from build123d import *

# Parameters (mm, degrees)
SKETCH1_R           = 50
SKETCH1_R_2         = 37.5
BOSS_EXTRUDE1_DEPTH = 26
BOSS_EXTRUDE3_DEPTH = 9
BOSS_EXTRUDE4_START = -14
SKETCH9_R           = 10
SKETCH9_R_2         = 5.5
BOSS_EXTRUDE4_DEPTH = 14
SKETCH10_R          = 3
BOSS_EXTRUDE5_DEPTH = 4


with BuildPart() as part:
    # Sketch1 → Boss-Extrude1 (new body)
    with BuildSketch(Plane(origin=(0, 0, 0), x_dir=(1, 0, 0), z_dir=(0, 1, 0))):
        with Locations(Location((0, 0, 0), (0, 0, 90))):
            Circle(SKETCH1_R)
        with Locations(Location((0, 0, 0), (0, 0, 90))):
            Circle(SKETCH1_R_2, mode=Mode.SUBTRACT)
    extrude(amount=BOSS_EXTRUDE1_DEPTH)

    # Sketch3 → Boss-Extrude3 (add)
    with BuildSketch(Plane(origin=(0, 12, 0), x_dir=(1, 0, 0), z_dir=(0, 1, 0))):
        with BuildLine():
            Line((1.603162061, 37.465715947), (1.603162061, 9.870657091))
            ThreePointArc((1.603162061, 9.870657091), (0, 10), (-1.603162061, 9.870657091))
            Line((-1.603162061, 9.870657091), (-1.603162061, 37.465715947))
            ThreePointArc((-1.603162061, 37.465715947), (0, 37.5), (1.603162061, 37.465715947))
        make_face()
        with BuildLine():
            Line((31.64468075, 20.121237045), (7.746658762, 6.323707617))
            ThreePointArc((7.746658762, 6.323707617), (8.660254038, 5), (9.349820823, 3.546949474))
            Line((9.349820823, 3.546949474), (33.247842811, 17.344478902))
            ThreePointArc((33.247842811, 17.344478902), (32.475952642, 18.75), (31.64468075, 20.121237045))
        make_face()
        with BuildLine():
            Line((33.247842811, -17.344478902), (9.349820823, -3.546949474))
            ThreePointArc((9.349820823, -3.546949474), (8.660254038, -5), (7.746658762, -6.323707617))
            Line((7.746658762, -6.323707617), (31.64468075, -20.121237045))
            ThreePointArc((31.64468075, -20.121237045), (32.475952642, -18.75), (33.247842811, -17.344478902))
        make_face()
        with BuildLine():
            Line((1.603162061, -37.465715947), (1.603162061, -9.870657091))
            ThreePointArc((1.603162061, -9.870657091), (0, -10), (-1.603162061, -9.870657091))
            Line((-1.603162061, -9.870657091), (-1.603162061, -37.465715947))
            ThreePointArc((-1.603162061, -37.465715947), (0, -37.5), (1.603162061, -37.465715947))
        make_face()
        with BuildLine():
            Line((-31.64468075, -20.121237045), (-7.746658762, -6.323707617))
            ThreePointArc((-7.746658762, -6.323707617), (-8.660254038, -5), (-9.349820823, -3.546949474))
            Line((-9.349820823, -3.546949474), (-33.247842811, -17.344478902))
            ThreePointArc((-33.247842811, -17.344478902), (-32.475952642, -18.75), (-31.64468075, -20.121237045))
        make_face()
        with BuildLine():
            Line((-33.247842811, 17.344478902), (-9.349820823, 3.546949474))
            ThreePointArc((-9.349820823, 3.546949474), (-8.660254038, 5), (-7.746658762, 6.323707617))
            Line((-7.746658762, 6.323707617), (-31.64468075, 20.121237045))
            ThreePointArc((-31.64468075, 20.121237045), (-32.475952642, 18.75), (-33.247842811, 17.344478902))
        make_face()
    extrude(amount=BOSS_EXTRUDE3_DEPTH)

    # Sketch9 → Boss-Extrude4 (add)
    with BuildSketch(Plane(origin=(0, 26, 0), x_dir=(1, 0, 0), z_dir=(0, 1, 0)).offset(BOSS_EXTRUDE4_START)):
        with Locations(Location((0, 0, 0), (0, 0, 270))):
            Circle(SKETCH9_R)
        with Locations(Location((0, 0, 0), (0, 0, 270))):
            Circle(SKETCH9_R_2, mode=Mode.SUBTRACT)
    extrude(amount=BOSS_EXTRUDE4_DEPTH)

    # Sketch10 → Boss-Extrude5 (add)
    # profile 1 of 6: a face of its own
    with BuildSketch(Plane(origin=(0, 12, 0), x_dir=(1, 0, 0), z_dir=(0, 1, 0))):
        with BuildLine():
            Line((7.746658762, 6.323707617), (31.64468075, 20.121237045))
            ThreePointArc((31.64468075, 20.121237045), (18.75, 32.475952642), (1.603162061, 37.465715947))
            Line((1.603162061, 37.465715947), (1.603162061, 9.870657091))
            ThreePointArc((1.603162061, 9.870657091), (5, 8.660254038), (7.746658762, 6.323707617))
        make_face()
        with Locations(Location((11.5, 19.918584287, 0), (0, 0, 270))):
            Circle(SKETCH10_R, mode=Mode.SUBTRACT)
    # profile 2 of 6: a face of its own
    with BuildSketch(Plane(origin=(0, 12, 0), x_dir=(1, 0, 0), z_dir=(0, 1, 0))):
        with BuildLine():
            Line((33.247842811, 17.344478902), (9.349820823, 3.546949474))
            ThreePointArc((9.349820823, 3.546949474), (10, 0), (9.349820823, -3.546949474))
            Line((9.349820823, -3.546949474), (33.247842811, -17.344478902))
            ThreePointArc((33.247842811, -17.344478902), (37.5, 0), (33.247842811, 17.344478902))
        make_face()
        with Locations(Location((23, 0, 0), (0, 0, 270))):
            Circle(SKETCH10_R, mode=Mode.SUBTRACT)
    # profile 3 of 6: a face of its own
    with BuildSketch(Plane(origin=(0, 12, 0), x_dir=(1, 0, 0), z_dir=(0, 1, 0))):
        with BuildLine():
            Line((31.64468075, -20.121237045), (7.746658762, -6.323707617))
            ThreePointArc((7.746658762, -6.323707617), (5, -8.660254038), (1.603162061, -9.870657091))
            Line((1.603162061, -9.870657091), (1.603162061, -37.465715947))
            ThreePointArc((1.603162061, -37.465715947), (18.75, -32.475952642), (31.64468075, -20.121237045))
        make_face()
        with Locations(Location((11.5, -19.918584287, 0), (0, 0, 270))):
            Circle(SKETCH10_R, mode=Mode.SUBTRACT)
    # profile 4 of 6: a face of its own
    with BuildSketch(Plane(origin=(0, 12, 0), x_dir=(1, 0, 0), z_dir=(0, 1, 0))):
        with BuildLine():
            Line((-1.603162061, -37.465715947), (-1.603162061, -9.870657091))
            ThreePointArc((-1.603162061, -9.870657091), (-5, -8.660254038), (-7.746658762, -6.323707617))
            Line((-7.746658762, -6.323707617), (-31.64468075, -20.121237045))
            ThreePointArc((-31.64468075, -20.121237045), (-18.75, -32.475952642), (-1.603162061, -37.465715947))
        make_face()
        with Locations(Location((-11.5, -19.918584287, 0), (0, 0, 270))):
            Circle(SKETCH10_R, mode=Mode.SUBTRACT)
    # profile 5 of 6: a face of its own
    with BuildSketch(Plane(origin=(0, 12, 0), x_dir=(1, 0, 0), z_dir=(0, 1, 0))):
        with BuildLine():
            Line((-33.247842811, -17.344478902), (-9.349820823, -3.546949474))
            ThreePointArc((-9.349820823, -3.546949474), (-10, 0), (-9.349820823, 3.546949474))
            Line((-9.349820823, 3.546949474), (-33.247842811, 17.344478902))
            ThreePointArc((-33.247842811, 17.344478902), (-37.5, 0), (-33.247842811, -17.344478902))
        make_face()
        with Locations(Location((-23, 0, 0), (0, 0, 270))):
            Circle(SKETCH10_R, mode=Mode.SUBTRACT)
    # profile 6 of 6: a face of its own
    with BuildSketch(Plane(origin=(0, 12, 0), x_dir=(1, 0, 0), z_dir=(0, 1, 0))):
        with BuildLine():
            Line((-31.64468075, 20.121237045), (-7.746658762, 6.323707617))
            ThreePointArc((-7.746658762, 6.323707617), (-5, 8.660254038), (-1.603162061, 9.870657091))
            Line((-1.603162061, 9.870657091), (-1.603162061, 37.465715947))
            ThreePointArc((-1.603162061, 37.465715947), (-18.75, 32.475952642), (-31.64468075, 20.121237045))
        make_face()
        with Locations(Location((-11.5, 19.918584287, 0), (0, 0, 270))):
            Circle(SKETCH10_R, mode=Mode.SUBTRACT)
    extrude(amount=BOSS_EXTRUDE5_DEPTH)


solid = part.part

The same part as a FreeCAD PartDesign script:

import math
import FreeCAD as App
import Part
import Sketcher
from FreeCAD import Vector
Q = App.Units.Quantity

doc = App.newDocument("Part")
params = doc.addObject("Spreadsheet::Sheet", "Params")
for row, (alias, value) in enumerate([
    ("sketch1_diameter", "100 mm"),
    ("sketch1_diameter2", "75 mm"),
    ("pad1_length", "26 mm"),
    ("sketch2_radius", "10 mm"),
    ("sketch2_radius2", "37.5 mm"),
    ("pad2_length", "9 mm"),
    ("sketch3_diameter", "20 mm"),
    ("sketch3_diameter2", "11 mm"),
    ("pad3_length", "14 mm"),
    ("sketch4_diameter", "6 mm"),
    ("sketch4_radius", "10 mm"),
    ("sketch4_radius2", "37.5 mm"),
    ("pad4_length", "4 mm"),
], start=1):
    params.set(f"A{row}", alias)
    params.set(f"B{row}", "=" + value)
    params.setAlias(f"B{row}", alias)

body = doc.addObject("PartDesign::Body", "Body")

sketch1 = body.newObject("Sketcher::SketchObject", "Sketch")
sketch1.AttachmentSupport = (doc.getObject("XZ_Plane"), [""])
sketch1.MapMode = "FlatFace"
sketch1.addGeometry([
    Part.Circle(Vector(0, 0, 0), Vector(0, 0, 1), 50),
    Part.Circle(Vector(0, 0, 0), Vector(0, 0, 1), 38),
], False)
sketch1.addConstraint([
    Sketcher.Constraint("Coincident", 0, 3, -1, 1),
    Sketcher.Constraint("Coincident", 1, 3, -1, 1),
    Sketcher.Constraint("Diameter", 0, 100.0),
    Sketcher.Constraint("Diameter", 1, 75.0),
])
sketch1.setExpression("Constraints[2]", "Params.sketch1_diameter")
sketch1.setExpression("Constraints[3]", "Params.sketch1_diameter2")
pad1 = body.newObject("PartDesign::Pad", "Pad")
pad1.Profile = sketch1
pad1.setExpression("Length", "Params.pad1_length")
pad1.Reversed = True

sketch2 = body.newObject("Sketcher::SketchObject", "Sketch001")
sketch2.AttachmentSupport = (doc.getObject("XZ_Plane"), [""])
sketch2.MapMode = "FlatFace"
sketch2.AttachmentOffset = App.Placement(Vector(0, 0, -12), App.Rotation())
sketch2.addGeometry([
    Part.LineSegment(Vector(1.6, -9.9, 0), Vector(1.6, -37.5, 0)),
    Part.ArcOfCircle(Part.Circle(Vector(0, 0, 0), Vector(0, 0, 1), 37.5), math.radians(-92.45), math.radians(-87.55)),
    Part.LineSegment(Vector(-1.6, -37.5, 0), Vector(-1.6, -9.9, 0)),
    Part.ArcOfCircle(Part.Circle(Vector(0, 0, 0), Vector(0, 0, 1), 10), math.radians(-99.23), math.radians(-80.77)),
    Part.LineSegment(Vector(31.6, -20.1, 0), Vector(7.7, -6.3, 0)),
    Part.ArcOfCircle(Part.Circle(Vector(0, 0, 0), Vector(0, 0, 1), 10), math.radians(-39.23), math.radians(-20.77)),
    Part.LineSegment(Vector(9.3, -3.5, 0), Vector(33.2, -17.3, 0)),
    Part.ArcOfCircle(Part.Circle(Vector(0, 0, 0), Vector(0, 0, 1), 37.5), math.radians(-32.45), math.radians(-27.55)),
    Part.LineSegment(Vector(33.2, 17.3, 0), Vector(9.3, 3.5, 0)),
    Part.ArcOfCircle(Part.Circle(Vector(0, 0, 0), Vector(0, 0, 1), 10), math.radians(20.77), math.radians(39.23)),
    Part.LineSegment(Vector(7.7, 6.3, 0), Vector(31.6, 20.1, 0)),
    Part.ArcOfCircle(Part.Circle(Vector(0, 0, 0), Vector(0, 0, 1), 37.5), math.radians(27.55), math.radians(32.45)),
    Part.LineSegment(Vector(1.6, 37.5, 0), Vector(1.6, 9.9, 0)),
    Part.ArcOfCircle(Part.Circle(Vector(0, 0, 0), Vector(0, 0, 1), 10), math.radians(80.77), math.radians(99.23)),
    Part.LineSegment(Vector(-1.6, 9.9, 0), Vector(-1.6, 37.5, 0)),
    Part.ArcOfCircle(Part.Circle(Vector(0, 0, 0), Vector(0, 0, 1), 37.5), math.radians(87.55), math.radians(92.45)),
    Part.LineSegment(Vector(-31.6, 20.1, 0), Vector(-7.7, 6.3, 0)),
    Part.ArcOfCircle(Part.Circle(Vector(0, 0, 0), Vector(0, 0, 1), 10), math.radians(140.77), math.radians(159.23)),
    Part.LineSegment(Vector(-9.3, 3.5, 0), Vector(-33.2, 17.3, 0)),
    Part.ArcOfCircle(Part.Circle(Vector(0, 0, 0), Vector(0, 0, 1), 37.5), math.radians(147.55), math.radians(152.45)),
    Part.LineSegment(Vector(-33.2, -17.3, 0), Vector(-9.3, -3.5, 0)),
    Part.ArcOfCircle(Part.Circle(Vector(0, 0, 0), Vector(0, 0, 1), 10), math.radians(-159.23), math.radians(-140.77)),
    Part.LineSegment(Vector(-7.7, -6.3, 0), Vector(-31.6, -20.1, 0)),
    Part.ArcOfCircle(Part.Circle(Vector(0, 0, 0), Vector(0, 0, 1), 37.5), math.radians(-152.45), math.radians(-147.55)),
], False)
sketch2.addConstraint([
    Sketcher.Constraint("Coincident", 0, 2, 1, 2),
    Sketcher.Constraint("Coincident", 1, 1, 2, 1),
    Sketcher.Constraint("Coincident", 2, 2, 3, 1),
    Sketcher.Constraint("Coincident", 3, 2, 0, 1),
    Sketcher.Constraint("Coincident", 4, 2, 5, 1),
    Sketcher.Constraint("Coincident", 5, 2, 6, 1),
    Sketcher.Constraint("Coincident", 6, 2, 7, 2),
    Sketcher.Constraint("Coincident", 7, 1, 4, 1),
    Sketcher.Constraint("Coincident", 8, 2, 9, 1),
    Sketcher.Constraint("Coincident", 9, 2, 10, 1),
    Sketcher.Constraint("Coincident", 10, 2, 11, 2),
    Sketcher.Constraint("Coincident", 11, 1, 8, 1),
    Sketcher.Constraint("Coincident", 12, 2, 13, 1),
    Sketcher.Constraint("Coincident", 13, 2, 14, 1),
    Sketcher.Constraint("Coincident", 14, 2, 15, 2),
    Sketcher.Constraint("Coincident", 15, 1, 12, 1),
    Sketcher.Constraint("Coincident", 16, 2, 17, 1),
    Sketcher.Constraint("Coincident", 17, 2, 18, 1),
    Sketcher.Constraint("Coincident", 18, 2, 19, 2),
    Sketcher.Constraint("Coincident", 19, 1, 16, 1),
    Sketcher.Constraint("Coincident", 20, 2, 21, 1),
    Sketcher.Constraint("Coincident", 21, 2, 22, 1),
    Sketcher.Constraint("Coincident", 22, 2, 23, 2),
    Sketcher.Constraint("Coincident", 23, 1, 20, 1),
    Sketcher.Constraint("Vertical", 0),
    Sketcher.Constraint("Vertical", 2),
    Sketcher.Constraint("Vertical", 12),
    Sketcher.Constraint("Vertical", 14),
    Sketcher.Constraint("Coincident", 1, 3, -1, 1),
    Sketcher.Constraint("Coincident", 3, 3, -1, 1),
    Sketcher.Constraint("Coincident", 5, 3, -1, 1),
    Sketcher.Constraint("Coincident", 7, 3, -1, 1),
    Sketcher.Constraint("Coincident", 9, 3, -1, 1),
    Sketcher.Constraint("Coincident", 11, 3, -1, 1),
    Sketcher.Constraint("Coincident", 13, 3, -1, 1),
    Sketcher.Constraint("Coincident", 15, 3, -1, 1),
    Sketcher.Constraint("Coincident", 17, 3, -1, 1),
    Sketcher.Constraint("Coincident", 19, 3, -1, 1),
    Sketcher.Constraint("Coincident", 21, 3, -1, 1),
    Sketcher.Constraint("Coincident", 23, 3, -1, 1),
    Sketcher.Constraint("Equal", 3, 5),
    Sketcher.Constraint("Equal", 1, 7),
    Sketcher.Constraint("Equal", 5, 9),
    Sketcher.Constraint("Equal", 7, 11),
    Sketcher.Constraint("Equal", 9, 13),
    Sketcher.Constraint("Equal", 11, 15),
    Sketcher.Constraint("Equal", 13, 17),
    Sketcher.Constraint("Equal", 15, 19),
    Sketcher.Constraint("Equal", 17, 21),
    Sketcher.Constraint("Equal", 19, 23),
    Sketcher.Constraint("Parallel", 4, 6),
    Sketcher.Constraint("Parallel", 8, 10),
    Sketcher.Constraint("Parallel", 6, 16),
    Sketcher.Constraint("Parallel", 16, 18),
    Sketcher.Constraint("Parallel", 10, 20),
    Sketcher.Constraint("Parallel", 20, 22),
    Sketcher.Constraint("Horizontal", 0, 2, 1, 1),
    Sketcher.Constraint("Horizontal", 12, 2, 13, 2),
    Sketcher.Constraint("Horizontal", 9, 2, 16, 2),
    Sketcher.Constraint("Horizontal", 8, 2, 17, 2),
    Sketcher.Constraint("Horizontal", 11, 1, 18, 2),
    Sketcher.Constraint("Horizontal", 5, 2, 20, 2),
    Sketcher.Constraint("Horizontal", 4, 2, 21, 2),
    Sketcher.Constraint("Vertical", 5, 2, 8, 2),
    Sketcher.Constraint("Vertical", 4, 2, 9, 2),
    Sketcher.Constraint("Vertical", 3, 2, 12, 2),
    Sketcher.Constraint("Equal", 4, 6),
    Sketcher.Constraint("Radius", 3, 10.0),
    Sketcher.Constraint("Radius", 1, 37.5),
    Sketcher.Constraint("Angle", 4, Q("150 deg")),
    Sketcher.Constraint("DistanceY", 0, 2, 0, 1, 27.595059),
    Sketcher.Constraint("DistanceY", 5, 2, 8, 2, 7.093899),
])
sketch2.setExpression("Constraints[67]", "Params.sketch2_radius")
sketch2.setExpression("Constraints[68]", "Params.sketch2_radius2")
pad2 = body.newObject("PartDesign::Pad", "Pad001")
pad2.Profile = sketch2
pad2.setExpression("Length", "Params.pad2_length")
pad2.Reversed = True

sketch3 = body.newObject("Sketcher::SketchObject", "Sketch002")
sketch3.AttachmentSupport = (doc.getObject("XZ_Plane"), [""])
sketch3.MapMode = "FlatFace"
sketch3.AttachmentOffset = App.Placement(Vector(0, 0, -12), App.Rotation())
sketch3.addGeometry([
    Part.Circle(Vector(0, 0, 0), Vector(0, 0, 1), 10),
    Part.Circle(Vector(0, 0, 0), Vector(0, 0, 1), 6),
], False)
sketch3.addConstraint([
    Sketcher.Constraint("Coincident", 0, 3, -1, 1),
    Sketcher.Constraint("Coincident", 1, 3, -1, 1),
    Sketcher.Constraint("Diameter", 0, 20.0),
    Sketcher.Constraint("Diameter", 1, 11.0),
])
sketch3.setExpression("Constraints[2]", "Params.sketch3_diameter")
sketch3.setExpression("Constraints[3]", "Params.sketch3_diameter2")
pad3 = body.newObject("PartDesign::Pad", "Pad002")
pad3.Profile = sketch3
pad3.setExpression("Length", "Params.pad3_length")
pad3.Reversed = True

sketch4 = body.newObject("Sketcher::SketchObject", "Sketch003")
sketch4.AttachmentSupport = (doc.getObject("XZ_Plane"), [""])
sketch4.MapMode = "FlatFace"
sketch4.AttachmentOffset = App.Placement(Vector(0, 0, -12), App.Rotation())
sketch4.addGeometry([
    Part.LineSegment(Vector(7.7, -6.3, 0), Vector(31.6, -20.1, 0)),
    Part.ArcOfCircle(Part.Circle(Vector(0, 0, 0), Vector(0, 0, 1), 37.5), math.radians(-88), math.radians(-32)),
    Part.LineSegment(Vector(1.6, -37.5, 0), Vector(1.6, -9.9, 0)),
    Part.ArcOfCircle(Part.Circle(Vector(0, 0, 0), Vector(0, 0, 1), 10), math.radians(-81), math.radians(-39)),
    Part.Circle(Vector(11.5, -19.9, 0), Vector(0, 0, 1), 3),
    Part.LineSegment(Vector(33.2, -17.3, 0), Vector(9.3, -3.5, 0)),
    Part.ArcOfCircle(Part.Circle(Vector(0, 0, 0), Vector(0, 0, 1), 10), math.radians(-21), math.radians(21)),
    Part.LineSegment(Vector(9.3, 3.5, 0), Vector(33.2, 17.3, 0)),
    Part.ArcOfCircle(Part.Circle(Vector(0, 0, 0), Vector(0, 0, 1), 37.5), math.radians(-28), math.radians(28)),
    Part.Circle(Vector(23, 0, 0), Vector(0, 0, 1), 3),
    Part.LineSegment(Vector(31.6, 20.1, 0), Vector(7.7, 6.3, 0)),
    Part.ArcOfCircle(Part.Circle(Vector(0, 0, 0), Vector(0, 0, 1), 10), math.radians(39), math.radians(81)),
    Part.LineSegment(Vector(1.6, 9.9, 0), Vector(1.6, 37.5, 0)),
    Part.ArcOfCircle(Part.Circle(Vector(0, 0, 0), Vector(0, 0, 1), 37.5), math.radians(32), math.radians(88)),
    Part.Circle(Vector(11.5, 19.9, 0), Vector(0, 0, 1), 3),
    Part.LineSegment(Vector(-1.6, 37.5, 0), Vector(-1.6, 9.9, 0)),
    Part.ArcOfCircle(Part.Circle(Vector(0, 0, 0), Vector(0, 0, 1), 10), math.radians(99), math.radians(141)),
    Part.LineSegment(Vector(-7.7, 6.3, 0), Vector(-31.6, 20.1, 0)),
    Part.ArcOfCircle(Part.Circle(Vector(0, 0, 0), Vector(0, 0, 1), 37.5), math.radians(92), math.radians(148)),
    Part.Circle(Vector(-11.5, 19.9, 0), Vector(0, 0, 1), 3),
    Part.LineSegment(Vector(-33.2, 17.3, 0), Vector(-9.3, 3.5, 0)),
    Part.ArcOfCircle(Part.Circle(Vector(0, 0, 0), Vector(0, 0, 1), 10), math.radians(159), math.radians(201)),
    Part.LineSegment(Vector(-9.3, -3.5, 0), Vector(-33.2, -17.3, 0)),
    Part.ArcOfCircle(Part.Circle(Vector(0, 0, 0), Vector(0, 0, 1), 37.5), math.radians(152), math.radians(208)),
    Part.Circle(Vector(-23, 0, 0), Vector(0, 0, 1), 3),
    Part.LineSegment(Vector(-31.6, -20.1, 0), Vector(-7.7, -6.3, 0)),
    Part.ArcOfCircle(Part.Circle(Vector(0, 0, 0), Vector(0, 0, 1), 10), math.radians(-141), math.radians(-99)),
    Part.LineSegment(Vector(-1.6, -9.9, 0), Vector(-1.6, -37.5, 0)),
    Part.ArcOfCircle(Part.Circle(Vector(0, 0, 0), Vector(0, 0, 1), 37.5), math.radians(-148), math.radians(-92)),
    Part.Circle(Vector(-11.5, -19.9, 0), Vector(0, 0, 1), 3),
], False)
sketch4.addConstraint([
    Sketcher.Constraint("Coincident", 0, 2, 1, 2),
    Sketcher.Constraint("Coincident", 1, 1, 2, 1),
    Sketcher.Constraint("Coincident", 2, 2, 3, 1),
    Sketcher.Constraint("Coincident", 3, 2, 0, 1),
    Sketcher.Constraint("Coincident", 5, 2, 6, 1),
    Sketcher.Constraint("Coincident", 6, 2, 7, 1),
    Sketcher.Constraint("Coincident", 7, 2, 8, 2),
    Sketcher.Constraint("Coincident", 8, 1, 5, 1),
    Sketcher.Constraint("Coincident", 10, 2, 11, 1),
    Sketcher.Constraint("Coincident", 11, 2, 12, 1),
    Sketcher.Constraint("Coincident", 12, 2, 13, 2),
    Sketcher.Constraint("Coincident", 13, 1, 10, 1),
    Sketcher.Constraint("Coincident", 15, 2, 16, 1),
    Sketcher.Constraint("Coincident", 16, 2, 17, 1),
    Sketcher.Constraint("Coincident", 17, 2, 18, 2),
    Sketcher.Constraint("Coincident", 18, 1, 15, 1),
    Sketcher.Constraint("Coincident", 20, 2, 21, 1),
    Sketcher.Constraint("Coincident", 21, 2, 22, 1),
    Sketcher.Constraint("Coincident", 22, 2, 23, 2),
    Sketcher.Constraint("Coincident", 23, 1, 20, 1),
    Sketcher.Constraint("Coincident", 25, 2, 26, 1),
    Sketcher.Constraint("Coincident", 26, 2, 27, 1),
    Sketcher.Constraint("Coincident", 27, 2, 28, 2),
    Sketcher.Constraint("Coincident", 28, 1, 25, 1),
    Sketcher.Constraint("Vertical", 2),
    Sketcher.Constraint("Vertical", 12),
    Sketcher.Constraint("Vertical", 15),
    Sketcher.Constraint("Vertical", 27),
    Sketcher.Constraint("Coincident", 1, 3, -1, 1),
    Sketcher.Constraint("Coincident", 3, 3, -1, 1),
    Sketcher.Constraint("Coincident", 6, 3, -1, 1),
    Sketcher.Constraint("Coincident", 8, 3, -1, 1),
    Sketcher.Constraint("Coincident", 11, 3, -1, 1),
    Sketcher.Constraint("Coincident", 13, 3, -1, 1),
    Sketcher.Constraint("Coincident", 16, 3, -1, 1),
    Sketcher.Constraint("Coincident", 18, 3, -1, 1),
    Sketcher.Constraint("Coincident", 21, 3, -1, 1),
    Sketcher.Constraint("Coincident", 23, 3, -1, 1),
    Sketcher.Constraint("Coincident", 26, 3, -1, 1),
    Sketcher.Constraint("Coincident", 28, 3, -1, 1),
    Sketcher.Constraint("Equal", 3, 6),
    Sketcher.Constraint("Equal", 1, 8),
    Sketcher.Constraint("Equal", 4, 9),
    Sketcher.Constraint("Equal", 6, 11),
    Sketcher.Constraint("Equal", 8, 13),
    Sketcher.Constraint("Equal", 9, 14),
    Sketcher.Constraint("Equal", 11, 16),
    Sketcher.Constraint("Equal", 13, 18),
    Sketcher.Constraint("Equal", 14, 19),
    Sketcher.Constraint("Equal", 16, 21),
    Sketcher.Constraint("Equal", 18, 23),
    Sketcher.Constraint("Equal", 19, 24),
    Sketcher.Constraint("Equal", 21, 26),
    Sketcher.Constraint("Equal", 23, 28),
    Sketcher.Constraint("Equal", 24, 29),
    Sketcher.Constraint("Symmetric", 4, 3, 19, 3, -1, 1),
    Sketcher.Constraint("Symmetric", 9, 3, 24, 3, -1, 1),
    Sketcher.Constraint("Symmetric", 14, 3, 29, 3, -1, 1),
    Sketcher.Constraint("Symmetric", 14, 3, 19, 3, -2),
    Sketcher.Constraint("PointOnObject", 9, 3, -1),
    Sketcher.Constraint("Parallel", 0, 5),
    Sketcher.Constraint("Parallel", 7, 10),
    Sketcher.Constraint("Parallel", 5, 17),
    Sketcher.Constraint("Parallel", 17, 20),
    Sketcher.Constraint("Parallel", 10, 22),
    Sketcher.Constraint("Parallel", 22, 25),
    Sketcher.Constraint("Horizontal", 11, 2, 15, 2),
    Sketcher.Constraint("Horizontal", 10, 2, 16, 2),
    Sketcher.Constraint("Horizontal", 13, 1, 17, 2),
    Sketcher.Constraint("Horizontal", 6, 2, 20, 2),
    Sketcher.Constraint("Horizontal", 5, 2, 21, 2),
    Sketcher.Constraint("Horizontal", 3, 2, 25, 2),
    Sketcher.Constraint("Horizontal", 2, 2, 26, 2),
    Sketcher.Constraint("Vertical", 5, 2, 6, 2),
    Sketcher.Constraint("Vertical", 3, 2, 10, 2),
    Sketcher.Constraint("Vertical", 2, 2, 11, 2),
    Sketcher.Constraint("Equal", 0, 5),
    Sketcher.Constraint("Diameter", 4, 6.0),
    Sketcher.Constraint("Radius", 3, 10.0),
    Sketcher.Constraint("Radius", 1, 37.5),
    Sketcher.Constraint("Angle", 0, Q("-30 deg")),
    Sketcher.Constraint("DistanceX", -1, 1, 9, 3, 23.0),
    Sketcher.Constraint("DistanceX", -1, 1, 4, 3, 11.5),
    Sketcher.Constraint("DistanceY", 2, 1, 2, 2, 27.595059),
    Sketcher.Constraint("DistanceY", 5, 2, 6, 2, 7.093899),
    Sketcher.Constraint("DistanceY", 1, 1, 4, 3, 17.547132),
])
sketch4.setExpression("Constraints[77]", "Params.sketch4_diameter")
sketch4.setExpression("Constraints[78]", "Params.sketch4_radius")
sketch4.setExpression("Constraints[79]", "Params.sketch4_radius2")
pad4 = body.newObject("PartDesign::Pad", "Pad003")
pad4.Profile = sketch4
pad4.setExpression("Length", "Params.pad4_length")
pad4.Reversed = True

doc.recompute()
